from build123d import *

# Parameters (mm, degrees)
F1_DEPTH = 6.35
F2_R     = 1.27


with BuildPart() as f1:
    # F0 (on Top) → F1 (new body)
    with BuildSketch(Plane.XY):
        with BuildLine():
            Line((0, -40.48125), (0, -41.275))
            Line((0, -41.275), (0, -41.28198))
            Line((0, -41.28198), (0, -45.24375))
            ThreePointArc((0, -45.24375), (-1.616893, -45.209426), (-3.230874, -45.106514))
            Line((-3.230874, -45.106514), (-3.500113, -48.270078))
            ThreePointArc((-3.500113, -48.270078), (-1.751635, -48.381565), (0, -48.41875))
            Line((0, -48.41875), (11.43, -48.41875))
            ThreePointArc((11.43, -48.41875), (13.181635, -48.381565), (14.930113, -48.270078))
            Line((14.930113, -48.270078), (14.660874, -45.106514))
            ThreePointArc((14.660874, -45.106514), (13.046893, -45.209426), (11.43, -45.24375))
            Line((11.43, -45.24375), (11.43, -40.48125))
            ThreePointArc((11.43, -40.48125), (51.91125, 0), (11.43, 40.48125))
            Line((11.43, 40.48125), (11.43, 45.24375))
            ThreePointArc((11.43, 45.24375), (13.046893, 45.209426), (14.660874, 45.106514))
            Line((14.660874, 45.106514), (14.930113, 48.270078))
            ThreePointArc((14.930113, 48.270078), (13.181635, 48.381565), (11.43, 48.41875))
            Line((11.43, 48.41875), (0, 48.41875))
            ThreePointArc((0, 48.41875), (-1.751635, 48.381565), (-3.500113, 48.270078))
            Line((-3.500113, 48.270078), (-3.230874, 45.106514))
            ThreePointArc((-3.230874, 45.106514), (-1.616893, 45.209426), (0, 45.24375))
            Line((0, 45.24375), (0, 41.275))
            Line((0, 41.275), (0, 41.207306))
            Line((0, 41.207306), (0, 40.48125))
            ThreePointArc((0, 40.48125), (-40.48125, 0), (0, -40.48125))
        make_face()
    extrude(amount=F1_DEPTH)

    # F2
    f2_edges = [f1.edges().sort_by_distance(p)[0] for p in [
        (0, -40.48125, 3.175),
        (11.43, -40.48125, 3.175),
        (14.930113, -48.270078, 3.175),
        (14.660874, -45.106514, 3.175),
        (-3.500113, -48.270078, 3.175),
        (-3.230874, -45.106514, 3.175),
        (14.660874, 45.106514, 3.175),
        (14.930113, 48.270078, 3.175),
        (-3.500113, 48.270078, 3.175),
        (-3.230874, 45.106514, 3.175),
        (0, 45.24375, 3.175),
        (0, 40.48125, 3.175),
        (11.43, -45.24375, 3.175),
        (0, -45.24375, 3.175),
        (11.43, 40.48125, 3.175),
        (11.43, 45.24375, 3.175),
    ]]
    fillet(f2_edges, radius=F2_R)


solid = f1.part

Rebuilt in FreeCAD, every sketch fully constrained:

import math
import FreeCAD as App
import Part
import Sketcher
from FreeCAD import Vector
Q = App.Units.Quantity


def edges_at(feature, points):
    """Names of the edges that pass closest to the given points."""
    edges = feature.Shape.Edges
    near = lambda p: min(range(len(edges)), key=lambda i: edges[i].distToShape(Part.Vertex(*p))[0])
    return sorted({f"Edge{near(p) + 1}" for p in points})

doc = App.newDocument("Part")
body = doc.addObject("PartDesign::Body", "Body")

sketch1 = body.newObject("Sketcher::SketchObject", "Sketch")
sketch1.AttachmentSupport = (doc.getObject("XY_Plane"), [""])
sketch1.MapMode = "FlatFace"
sketch1.addGeometry(Part.LineSegment(Vector(0, -40.5, 0), Vector(0, -45.2, 0)), False)
sketch1.addGeometry(Part.ArcOfCircle(Part.Circle(Vector(0, -7.1, 0), Vector(0, 0, 1), 38.1), math.radians(-94.86), math.radians(-90)), False)
sketch1.addGeometry(Part.LineSegment(Vector(-3.2, -45.1, 0), Vector(-3.5, -48.3, 0)), False)
sketch1.addGeometry(Part.ArcOfCircle(Part.Circle(Vector(0, -7.1, 0), Vector(0, 0, 1), 41.3), math.radians(-94.86), math.radians(-90)), False)
sketch1.addGeometry(Part.LineSegment(Vector(0, -48.4, 0), Vector(11.4, -48.4, 0)), False)
sketch1.addGeometry(Part.ArcOfCircle(Part.Circle(Vector(11.4, -7.1, 0), Vector(0, 0, 1), 41.3), math.radians(-90), math.radians(-85.14)), False)
sketch1.addGeometry(Part.LineSegment(Vector(14.9, -48.3, 0), Vector(14.7, -45.1, 0)), False)
sketch1.addGeometry(Part.ArcOfCircle(Part.Circle(Vector(11.4, -7.1, 0), Vector(0, 0, 1), 38.1), math.radians(-90), math.radians(-85.14)), False)
sketch1.addGeometry(Part.LineSegment(Vector(11.4, -45.2, 0), Vector(11.4, -40.5, 0)), False)
sketch1.addGeometry(Part.ArcOfCircle(Part.Circle(Vector(11.4, 0, 0), Vector(0, 0, 1), 40.5), math.radians(-90), math.radians(90)), False)
sketch1.addGeometry(Part.LineSegment(Vector(11.4, 40.5, 0), Vector(11.4, 45.2, 0)), False)
sketch1.addGeometry(Part.ArcOfCircle(Part.Circle(Vector(11.4, 7.1, 0), Vector(0, 0, 1), 38.1), math.radians(85.14), math.radians(90)), False)
sketch1.addGeometry(Part.LineSegment(Vector(14.7, 45.1, 0), Vector(14.9, 48.3, 0)), False)
sketch1.addGeometry(Part.ArcOfCircle(Part.Circle(Vector(11.4, 7.1, 0), Vector(0, 0, 1), 41.3), math.radians(85.14), math.radians(90)), False)
sketch1.addGeometry(Part.LineSegment(Vector(11.4, 48.4, 0), Vector(0, 48.4, 0)), False)
sketch1.addGeometry(Part.ArcOfCircle(Part.Circle(Vector(0, 7.1, 0), Vector(0, 0, 1), 41.3), math.radians(90), math.radians(94.86)), False)
sketch1.addGeometry(Part.LineSegment(Vector(-3.5, 48.3, 0), Vector(-3.2, 45.1, 0)), False)
sketch1.addGeometry(Part.ArcOfCircle(Part.Circle(Vector(0, 7.1, 0), Vector(0, 0, 1), 38.1), math.radians(90), math.radians(94.86)), False)
sketch1.addGeometry(Part.LineSegment(Vector(0, 45.2, 0), Vector(0, 40.5, 0)), False)
sketch1.addGeometry(Part.ArcOfCircle(Part.Circle(Vector(0, 0, 0), Vector(0, 0, 1), 40.5), math.radians(90), math.radians(270)), False)
sketch1.addConstraint(Sketcher.Constraint("Coincident", 0, 2, 1, 2))
sketch1.addConstraint(Sketcher.Constraint("Coincident", 1, 1, 2, 1))
sketch1.addConstraint(Sketcher.Constraint("Coincident", 2, 2, 3, 1))
sketch1.addConstraint(Sketcher.Constraint("Tangent", 3, 2, 4, 1))
sketch1.addConstraint(Sketcher.Constraint("Tangent", 4, 2, 5, 1))
sketch1.addConstraint(Sketcher.Constraint("Coincident", 5, 2, 6, 1))
sketch1.addConstraint(Sketcher.Constraint("Coincident", 6, 2, 7, 2))
sketch1.addConstraint(Sketcher.Constraint("Coincident", 7, 1, 8, 1))
sketch1.addConstraint(Sketcher.Constraint("Coincident", 8, 2, 9, 1))
sketch1.addConstraint(Sketcher.Constraint("Coincident", 9, 2, 10, 1))
sketch1.addConstraint(Sketcher.Constraint("Coincident", 10, 2, 11, 2))
sketch1.addConstraint(Sketcher.Constraint("Coincident", 11, 1, 12, 1))
sketch1.addConstraint(Sketcher.Constraint("Coincident", 12, 2, 13, 1))
sketch1.addConstraint(Sketcher.Constraint("Tangent", 13, 2, 14, 1))
sketch1.addConstraint(Sketcher.Constraint("Tangent", 14, 2, 15, 1))
sketch1.addConstraint(Sketcher.Constraint("Coincident", 15, 2, 16, 1))
sketch1.addConstraint(Sketcher.Constraint("Coincident", 16, 2, 17, 2))
sketch1.addConstraint(Sketcher.Constraint("Coincident", 17, 1, 18, 1))
sketch1.addConstraint(Sketcher.Constraint("Coincident", 18, 2, 19, 1))
sketch1.addConstraint(Sketcher.Constraint("Coincident", 19, 2, 0, 1))
sketch1.addConstraint(Sketcher.Constraint("Vertical", 0))
sketch1.addConstraint(Sketcher.Constraint("Horizontal", 4))
sketch1.addConstraint(Sketcher.Constraint("Vertical", 8))
sketch1.addConstraint(Sketcher.Constraint("Vertical", 10))
sketch1.addConstraint(Sketcher.Constraint("Horizontal", 14))
sketch1.addConstraint(Sketcher.Constraint("Vertical", 18))
sketch1.addConstraint(Sketcher.Constraint("Coincident", 19, 3, -1, 1))
sketch1.addConstraint(Sketcher.Constraint("Equal", 3, 5))
sketch1.addConstraint(Sketcher.Constraint("Equal", 1, 7))
sketch1.addConstraint(Sketcher.Constraint("Equal", 7, 11))
sketch1.addConstraint(Sketcher.Constraint("Equal", 5, 13))
sketch1.addConstraint(Sketcher.Constraint("Equal", 13, 15))
sketch1.addConstraint(Sketcher.Constraint("Equal", 11, 17))
sketch1.addConstraint(Sketcher.Constraint("Equal", 9, 19))
sketch1.addConstraint(Sketcher.Constraint("Symmetric", 3, 2, 14, 2, -1, 1))
sketch1.addConstraint(Sketcher.Constraint("Symmetric", 0, 2, 17, 1, -1, 1))
sketch1.addConstraint(Sketcher.Constraint("Symmetric", 7, 3, 11, 3, -1))
sketch1.addConstraint(Sketcher.Constraint("Symmetric", 8, 2, 9, 2, -1))
sketch1.addConstraint(Sketcher.Constraint("Symmetric", 5, 2, 12, 2, -1))
sketch1.addConstraint(Sketcher.Constraint("Symmetric", 2, 2, 15, 2, -1))
sketch1.addConstraint(Sketcher.Constraint("Symmetric", 1, 1, 16, 2, -1))
sketch1.addConstraint(Sketcher.Constraint("PointOnObject", 0, 2, -2))
sketch1.addConstraint(Sketcher.Constraint("Parallel", 2, 12))
sketch1.addConstraint(Sketcher.Constraint("Parallel", 6, 16))
sketch1.addConstraint(Sketcher.Constraint("Horizontal", 1, 3, 7, 3))
sketch1.addConstraint(Sketcher.Constraint("Horizontal", 2, 2, 5, 2))
sketch1.addConstraint(Sketcher.Constraint("Horizontal", 1, 1, 6, 2))
sketch1.addConstraint(Sketcher.Constraint("Vertical", 9, 3, 4, 2))
sketch1.addConstraint(Sketcher.Constraint("Vertical", 4, 2, 7, 1))
sketch1.addConstraint(Sketcher.Constraint("Radius", 9, Q("1.59375 in")))
sketch1.addConstraint(Sketcher.Constraint("DistanceX", 4, 1, 4, 2, Q("0.45 in")))
sketch1.addConstraint(Sketcher.Constraint("DistanceY", 0, 2, 0, 1, Q("0.1875 in")))
sketch1.addConstraint(Sketcher.Constraint("Distance", 2, Q("0.125 in")))
sketch1.addConstraint(Sketcher.Constraint("DistanceY", 3, 2, -1, 1, Q("1.90625 in")))
sketch1.addConstraint(Sketcher.Constraint("Radius", 1, 38.09951))
sketch1.addConstraint(Sketcher.Constraint("Radius", 3, 41.275326))
sketch1.addConstraint(Sketcher.Constraint("DistanceX", 1, 1, 3, 3, Q("0.1272002 in")))
sketch1.addConstraint(Sketcher.Constraint("DistanceX", 2, 2, 1, 1, Q("0.0106 in")))
pad1 = body.newObject("PartDesign::Pad", "Pad")
pad1.Profile = sketch1
pad1.Length = Q("0.25 in")
doc.recompute()

fillet = body.newObject("PartDesign::Fillet", "Fillet")
fillet.Base = (pad1, edges_at(pad1, [
    (0, -40.481, 3.175),
    (11.43, -40.481, 3.175),
    (14.93, -48.27, 3.175),
    (14.661, -45.107, 3.175),
    (-3.5, -48.27, 3.175),
    (-3.231, -45.107, 3.175),
    (14.661, 45.107, 3.175),
    (14.93, 48.27, 3.175),
    (-3.5, 48.27, 3.175),
    (-3.231, 45.107, 3.175),
    (0, 45.244, 3.175),
    (0, 40.481, 3.175),
    (11.43, -45.244, 3.175),
    (0, -45.244, 3.175),
    (11.43, 40.481, 3.175),
    (11.43, 45.244, 3.175),
]))
fillet.Radius = Q("0.05 in")

doc.recompute()
